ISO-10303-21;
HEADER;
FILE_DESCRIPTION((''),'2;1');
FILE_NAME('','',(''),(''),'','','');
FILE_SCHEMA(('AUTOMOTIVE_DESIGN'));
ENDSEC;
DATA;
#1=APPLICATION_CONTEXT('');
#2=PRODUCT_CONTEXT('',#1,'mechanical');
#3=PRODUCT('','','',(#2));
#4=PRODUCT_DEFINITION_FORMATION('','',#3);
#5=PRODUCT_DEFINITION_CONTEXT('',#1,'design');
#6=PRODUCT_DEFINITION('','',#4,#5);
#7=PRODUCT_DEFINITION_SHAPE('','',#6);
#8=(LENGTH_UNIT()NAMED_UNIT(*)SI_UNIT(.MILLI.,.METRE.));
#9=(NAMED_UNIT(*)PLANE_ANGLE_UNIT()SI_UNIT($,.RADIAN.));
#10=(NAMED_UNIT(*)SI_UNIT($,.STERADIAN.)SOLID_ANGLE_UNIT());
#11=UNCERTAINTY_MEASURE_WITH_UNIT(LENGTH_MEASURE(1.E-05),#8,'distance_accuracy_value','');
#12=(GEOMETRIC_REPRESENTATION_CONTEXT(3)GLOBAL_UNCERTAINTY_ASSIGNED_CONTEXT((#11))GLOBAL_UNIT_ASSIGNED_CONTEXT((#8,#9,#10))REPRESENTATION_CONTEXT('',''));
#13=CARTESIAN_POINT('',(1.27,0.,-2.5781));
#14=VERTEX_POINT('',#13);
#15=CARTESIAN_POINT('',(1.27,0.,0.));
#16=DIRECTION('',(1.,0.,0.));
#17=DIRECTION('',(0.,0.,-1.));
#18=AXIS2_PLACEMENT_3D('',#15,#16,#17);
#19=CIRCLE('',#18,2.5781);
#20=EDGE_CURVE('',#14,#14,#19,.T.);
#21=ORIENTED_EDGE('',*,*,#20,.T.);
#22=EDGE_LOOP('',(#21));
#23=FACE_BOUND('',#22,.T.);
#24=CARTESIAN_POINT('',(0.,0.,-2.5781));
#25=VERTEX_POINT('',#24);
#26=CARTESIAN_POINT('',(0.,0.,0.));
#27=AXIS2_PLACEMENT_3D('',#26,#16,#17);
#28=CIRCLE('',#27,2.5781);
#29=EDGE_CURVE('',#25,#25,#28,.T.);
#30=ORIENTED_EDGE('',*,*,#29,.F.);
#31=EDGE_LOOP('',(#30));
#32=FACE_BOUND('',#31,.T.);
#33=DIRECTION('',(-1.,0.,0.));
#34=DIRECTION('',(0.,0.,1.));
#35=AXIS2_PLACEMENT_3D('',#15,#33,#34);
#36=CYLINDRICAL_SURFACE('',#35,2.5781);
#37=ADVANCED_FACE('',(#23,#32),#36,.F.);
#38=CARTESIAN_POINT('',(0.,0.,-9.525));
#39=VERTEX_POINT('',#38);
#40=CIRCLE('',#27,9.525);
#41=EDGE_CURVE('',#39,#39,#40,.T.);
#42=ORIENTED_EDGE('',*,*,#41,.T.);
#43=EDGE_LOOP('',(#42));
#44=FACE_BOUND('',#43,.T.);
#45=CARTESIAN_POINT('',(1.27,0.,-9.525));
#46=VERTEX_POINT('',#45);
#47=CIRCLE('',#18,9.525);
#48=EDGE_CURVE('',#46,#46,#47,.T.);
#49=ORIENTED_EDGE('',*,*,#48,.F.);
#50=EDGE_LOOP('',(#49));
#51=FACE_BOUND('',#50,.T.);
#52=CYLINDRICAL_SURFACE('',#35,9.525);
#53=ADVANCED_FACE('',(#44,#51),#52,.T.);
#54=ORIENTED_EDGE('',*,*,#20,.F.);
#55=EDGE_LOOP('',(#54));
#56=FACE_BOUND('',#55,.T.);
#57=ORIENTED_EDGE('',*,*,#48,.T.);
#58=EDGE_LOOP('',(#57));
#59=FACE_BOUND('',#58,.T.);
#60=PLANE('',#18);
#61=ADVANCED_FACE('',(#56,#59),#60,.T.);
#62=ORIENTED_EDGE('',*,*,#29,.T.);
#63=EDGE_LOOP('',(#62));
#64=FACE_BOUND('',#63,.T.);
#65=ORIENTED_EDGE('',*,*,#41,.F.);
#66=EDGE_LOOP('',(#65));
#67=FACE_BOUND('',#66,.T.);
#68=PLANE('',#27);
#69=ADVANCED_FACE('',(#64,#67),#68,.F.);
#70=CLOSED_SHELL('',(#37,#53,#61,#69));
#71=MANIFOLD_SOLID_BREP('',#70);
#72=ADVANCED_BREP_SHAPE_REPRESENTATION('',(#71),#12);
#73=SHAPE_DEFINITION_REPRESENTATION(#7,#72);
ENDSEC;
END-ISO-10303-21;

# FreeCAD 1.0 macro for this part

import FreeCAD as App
import Part
import Sketcher
from FreeCAD import Vector
Q = App.Units.Quantity

doc = App.newDocument("Part")
body = doc.addObject("PartDesign::Body", "Body")

# Sketch on YZ plane
sketch1 = body.newObject("Sketcher::SketchObject", "Sketch")
sketch1.AttachmentSupport = (doc.getObject("YZ_Plane"), [""])
sketch1.MapMode = "FlatFace"
sketch1.addGeometry([
    Part.Circle(Vector(0, 0, 0), Vector(0, 0, 1), 9.525),
    Part.Circle(Vector(0, 0, 0), Vector(0, 0, 1), 2.5781),
], False)
sketch1.addConstraint([
    Sketcher.Constraint("Coincident", 0, 3, -1, 1),
    Sketcher.Constraint("Coincident", 1, 3, -1, 1),
    Sketcher.Constraint("Diameter", 0, Q("0.75 in")),
    Sketcher.Constraint("Diameter", 1, Q("0.203 in")),
])
pad1 = body.newObject("PartDesign::Pad", "Pad")
pad1.Profile = sketch1
pad1.Length = Q("0.05 in")

doc.recompute()
